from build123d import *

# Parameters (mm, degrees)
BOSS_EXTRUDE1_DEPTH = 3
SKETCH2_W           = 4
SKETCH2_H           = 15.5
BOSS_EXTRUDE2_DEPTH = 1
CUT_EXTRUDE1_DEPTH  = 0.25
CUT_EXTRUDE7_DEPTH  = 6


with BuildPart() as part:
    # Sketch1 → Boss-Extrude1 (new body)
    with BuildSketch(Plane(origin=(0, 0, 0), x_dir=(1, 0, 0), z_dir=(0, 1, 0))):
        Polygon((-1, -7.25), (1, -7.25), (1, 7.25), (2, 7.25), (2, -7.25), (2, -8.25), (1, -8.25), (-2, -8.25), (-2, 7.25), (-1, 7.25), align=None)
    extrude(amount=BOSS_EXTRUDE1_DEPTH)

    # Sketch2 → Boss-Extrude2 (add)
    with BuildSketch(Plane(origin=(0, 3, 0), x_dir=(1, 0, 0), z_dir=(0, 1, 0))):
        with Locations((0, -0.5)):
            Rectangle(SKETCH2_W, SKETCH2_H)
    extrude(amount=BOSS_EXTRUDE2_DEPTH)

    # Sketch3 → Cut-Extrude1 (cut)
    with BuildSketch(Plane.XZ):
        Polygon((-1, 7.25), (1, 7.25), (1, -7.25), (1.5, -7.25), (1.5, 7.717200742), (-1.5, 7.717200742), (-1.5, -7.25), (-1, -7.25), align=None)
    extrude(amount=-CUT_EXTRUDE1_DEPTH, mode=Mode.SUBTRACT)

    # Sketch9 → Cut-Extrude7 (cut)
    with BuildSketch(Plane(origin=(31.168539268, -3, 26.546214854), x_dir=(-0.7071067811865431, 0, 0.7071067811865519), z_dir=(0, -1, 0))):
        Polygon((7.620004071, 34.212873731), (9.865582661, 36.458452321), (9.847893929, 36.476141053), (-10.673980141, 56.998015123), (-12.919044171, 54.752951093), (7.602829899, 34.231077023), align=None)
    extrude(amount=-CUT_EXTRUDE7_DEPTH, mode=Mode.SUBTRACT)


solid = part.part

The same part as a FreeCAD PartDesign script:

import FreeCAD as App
import Part
import Sketcher
from FreeCAD import Vector
Q = App.Units.Quantity

doc = App.newDocument("Part")
body = doc.addObject("PartDesign::Body", "Body")

# Sketch on XZ plane
sketch1 = body.newObject("Sketcher::SketchObject", "Sketch")
sketch1.AttachmentSupport = (doc.getObject("XZ_Plane"), [""])
sketch1.MapMode = "FlatFace"
sketch1.addGeometry(Part.LineSegment(Vector(1, 7.25, 0), Vector(-1, 7.25, 0)), False)
sketch1.addGeometry(Part.LineSegment(Vector(-1, 7.25, 0), Vector(-1, -7.25, 0)), False)
sketch1.addGeometry(Part.LineSegment(Vector(-1, -7.25, 0), Vector(-2, -7.25, 0)), False)
sketch1.addGeometry(Part.LineSegment(Vector(-2, -7.25, 0), Vector(-2, 8.25, 0)), False)
sketch1.addGeometry(Part.LineSegment(Vector(-2, 8.25, 0), Vector(2, 8.25, 0)), False)
sketch1.addGeometry(Part.LineSegment(Vector(2, 8.25, 0), Vector(2, -7.25, 0)), False)
sketch1.addGeometry(Part.LineSegment(Vector(2, -7.25, 0), Vector(1, -7.25, 0)), False)
sketch1.addGeometry(Part.LineSegment(Vector(1, -7.25, 0), Vector(1, 7.25, 0)), False)
sketch1.addConstraint(Sketcher.Constraint("Coincident", 0, 2, 1, 1))
sketch1.addConstraint(Sketcher.Constraint("Coincident", 1, 2, 2, 1))
sketch1.addConstraint(Sketcher.Constraint("Coincident", 2, 2, 3, 1))
sketch1.addConstraint(Sketcher.Constraint("Coincident", 3, 2, 4, 1))
sketch1.addConstraint(Sketcher.Constraint("Coincident", 4, 2, 5, 1))
sketch1.addConstraint(Sketcher.Constraint("Coincident", 5, 2, 6, 1))
sketch1.addConstraint(Sketcher.Constraint("Coincident", 6, 2, 7, 1))
sketch1.addConstraint(Sketcher.Constraint("Coincident", 7, 2, 0, 1))
sketch1.addConstraint(Sketcher.Constraint("Horizontal", 0))
sketch1.addConstraint(Sketcher.Constraint("Vertical", 1))
sketch1.addConstraint(Sketcher.Constraint("Horizontal", 2))
sketch1.addConstraint(Sketcher.Constraint("Vertical", 3))
sketch1.addConstraint(Sketcher.Constraint("Horizontal", 4))
sketch1.addConstraint(Sketcher.Constraint("Vertical", 5))
sketch1.addConstraint(Sketcher.Constraint("Horizontal", 6))
sketch1.addConstraint(Sketcher.Constraint("Vertical", 7))
sketch1.addConstraint(Sketcher.Constraint("Symmetric", 0, 2, 6, 2, -1, 1))
sketch1.addConstraint(Sketcher.Constraint("Symmetric", 2, 2, 5, 2, -2))
sketch1.addConstraint(Sketcher.Constraint("DistanceX", 0, 2, 0, 1, Q("2 mm")))
sketch1.addConstraint(Sketcher.Constraint("DistanceX", 2, 2, 2, 1, Q("1 mm")))
sketch1.addConstraint(Sketcher.Constraint("DistanceY", 1, 2, 1, 1, Q("14.5 mm")))
sketch1.addConstraint(Sketcher.Constraint("DistanceY", 3, 1, 3, 2, Q("15.5 mm")))
pad1 = body.newObject("PartDesign::Pad", "Pad")
pad1.Profile = sketch1
pad1.Length = 3
pad1.Reversed = True

# Sketch on XZ plane
sketch2 = body.newObject("Sketcher::SketchObject", "Sketch001")
sketch2.AttachmentSupport = (doc.getObject("XZ_Plane"), [""])
sketch2.MapMode = "FlatFace"
sketch2.AttachmentOffset = App.Placement(Vector(0, 0, -3), App.Rotation())
sketch2.addGeometry(Part.LineSegment(Vector(-2, -7.25, 0), Vector(-2, 8.25, 0)), False)
sketch2.addGeometry(Part.LineSegment(Vector(-2, 8.25, 0), Vector(2, 8.25, 0)), False)
sketch2.addGeometry(Part.LineSegment(Vector(2, 8.25, 0), Vector(2, -7.25, 0)), False)
sketch2.addGeometry(Part.LineSegment(Vector(2, -7.25, 0), Vector(-2, -7.25, 0)), False)
sketch2.addConstraint(Sketcher.Constraint("Coincident", 0, 2, 1, 1))
sketch2.addConstraint(Sketcher.Constraint("Coincident", 1, 2, 2, 1))
sketch2.addConstraint(Sketcher.Constraint("Coincident", 2, 2, 3, 1))
sketch2.addConstraint(Sketcher.Constraint("Coincident", 3, 2, 0, 1))
sketch2.addConstraint(Sketcher.Constraint("Vertical", 0))
sketch2.addConstraint(Sketcher.Constraint("Horizontal", 1))
sketch2.addConstraint(Sketcher.Constraint("Vertical", 2))
sketch2.addConstraint(Sketcher.Constraint("Horizontal", 3))
sketch2.addConstraint(Sketcher.Constraint("DistanceX", 1, 1, 1, 2, Q("4 mm")))
sketch2.addConstraint(Sketcher.Constraint("DistanceY", 0, 1, 0, 2, Q("15.5 mm")))
sketch2.addConstraint(Sketcher.Constraint("DistanceX", 0, 2, -1, 1, Q("2 mm")))
sketch2.addConstraint(Sketcher.Constraint("DistanceY", -1, 1, 0, 2, Q("8.25 mm")))
pad2 = body.newObject("PartDesign::Pad", "Pad001")
pad2.Profile = sketch2
pad2.Length = 1
pad2.Reversed = True

# Sketch on XZ plane
sketch3 = body.newObject("Sketcher::SketchObject", "Sketch002")
sketch3.AttachmentSupport = (doc.getObject("XZ_Plane"), [""])
sketch3.MapMode = "FlatFace"
sketch3.addGeometry(Part.LineSegment(Vector(-1, 7.25, 0), Vector(1, 7.25, 0)), False)
sketch3.addGeometry(Part.LineSegment(Vector(1, 7.25, 0), Vector(1, -7.25, 0)), False)
sketch3.addGeometry(Part.LineSegment(Vector(1, -7.25, 0), Vector(1.5, -7.25, 0)), False)
sketch3.addGeometry(Part.LineSegment(Vector(1.5, -7.25, 0), Vector(1.5, 7.717201, 0)), False)
sketch3.addGeometry(Part.LineSegment(Vector(1.5, 7.717201, 0), Vector(-1.5, 7.717201, 0)), False)
sketch3.addGeometry(Part.LineSegment(Vector(-1.5, 7.717201, 0), Vector(-1.5, -7.25, 0)), False)
sketch3.addGeometry(Part.LineSegment(Vector(-1.5, -7.25, 0), Vector(-1, -7.25, 0)), False)
sketch3.addGeometry(Part.LineSegment(Vector(-1, -7.25, 0), Vector(-1, 7.25, 0)), False)
sketch3.addConstraint(Sketcher.Constraint("Coincident", 0, 2, 1, 1))
sketch3.addConstraint(Sketcher.Constraint("Coincident", 1, 2, 2, 1))
sketch3.addConstraint(Sketcher.Constraint("Coincident", 2, 2, 3, 1))
sketch3.addConstraint(Sketcher.Constraint("Coincident", 3, 2, 4, 1))
sketch3.addConstraint(Sketcher.Constraint("Coincident", 4, 2, 5, 1))
sketch3.addConstraint(Sketcher.Constraint("Coincident", 5, 2, 6, 1))
sketch3.addConstraint(Sketcher.Constraint("Coincident", 6, 2, 7, 1))
sketch3.addConstraint(Sketcher.Constraint("Coincident", 7, 2, 0, 1))
sketch3.addConstraint(Sketcher.Constraint("Horizontal", 0))
sketch3.addConstraint(Sketcher.Constraint("Vertical", 1))
sketch3.addConstraint(Sketcher.Constraint("Horizontal", 2))
sketch3.addConstraint(Sketcher.Constraint("Vertical", 3))
sketch3.addConstraint(Sketcher.Constraint("Horizontal", 4))
sketch3.addConstraint(Sketcher.Constraint("Vertical", 5))
sketch3.addConstraint(Sketcher.Constraint("Horizontal", 6))
sketch3.addConstraint(Sketcher.Constraint("Vertical", 7))
sketch3.addConstraint(Sketcher.Constraint("Symmetric", 0, 2, 6, 2, -1, 1))
sketch3.addConstraint(Sketcher.Constraint("Symmetric", 2, 2, 5, 2, -2))
sketch3.addConstraint(Sketcher.Constraint("DistanceX", 0, 1, 0, 2, Q("2 mm")))
sketch3.addConstraint(Sketcher.Constraint("DistanceX", 4, 2, 4, 1, Q("3 mm")))
sketch3.addConstraint(Sketcher.Constraint("DistanceY", 1, 2, 1, 1, Q("14.5 mm")))
sketch3.addConstraint(Sketcher.Constraint("DistanceY", 3, 1, 3, 2, Q("14.967201 mm")))
pocket1 = body.newObject("PartDesign::Pocket", "Pocket")
pocket1.Profile = sketch3
pocket1.Length = 0.25

# Sketch on XZ plane
sketch4 = body.newObject("Sketcher::SketchObject", "Sketch003")
sketch4.AttachmentSupport = (doc.getObject("XZ_Plane"), [""])
sketch4.MapMode = "FlatFace"
sketch4.AttachmentOffset = App.Placement(Vector(0, 0, 3), App.Rotation())
sketch4.addGeometry(Part.LineSegment(Vector(1.588228, 7.742216, 0), Vector(-1.5875, 7.742216, 0)), False)
sketch4.addGeometry(Part.LineSegment(Vector(-1.5875, 7.742216, 0), Vector(-1.5875, -21.305112, 0)), False)
sketch4.addGeometry(Part.LineSegment(Vector(-1.5875, -21.305112, 0), Vector(1.5875, -21.305112, 0)), False)
sketch4.addGeometry(Part.LineSegment(Vector(1.5875, -21.305112, 0), Vector(1.5875, 7.717201, 0)), False)
sketch4.addGeometry(Part.LineSegment(Vector(1.5875, 7.717201, 0), Vector(1.588228, 7.742216, 0)), False)
sketch4.addConstraint(Sketcher.Constraint("Coincident", 0, 2, 1, 1))
sketch4.addConstraint(Sketcher.Constraint("Coincident", 1, 2, 2, 1))
sketch4.addConstraint(Sketcher.Constraint("Coincident", 2, 2, 3, 1))
sketch4.addConstraint(Sketcher.Constraint("Coincident", 3, 2, 4, 1))
sketch4.addConstraint(Sketcher.Constraint("Coincident", 4, 2, 0, 1))
sketch4.addConstraint(Sketcher.Constraint("Horizontal", 0))
sketch4.addConstraint(Sketcher.Constraint("Vertical", 1))
sketch4.addConstraint(Sketcher.Constraint("Horizontal", 2))
sketch4.addConstraint(Sketcher.Constraint("Vertical", 3))
sketch4.addConstraint(Sketcher.Constraint("DistanceX", 2, 1, 2, 2, Q("3.175 mm")))
sketch4.addConstraint(Sketcher.Constraint("DistanceY", 1, 2, 1, 1, Q("29.047328 mm")))
sketch4.addConstraint(Sketcher.Constraint("DistanceX", 0, 2, -1, 1, Q("1.5875 mm")))
sketch4.addConstraint(Sketcher.Constraint("DistanceY", -1, 1, 3, 2, Q("7.717201 mm")))
sketch4.addConstraint(Sketcher.Constraint("DistanceX", 0, 2, 0, 1, Q("3.175728 mm")))
sketch4.addConstraint(Sketcher.Constraint("DistanceY", 3, 1, 3, 2, Q("29.022313 mm")))
pocket2 = body.newObject("PartDesign::Pocket", "Pocket001")
pocket2.Profile = sketch4
pocket2.Length = 6

doc.recompute()
